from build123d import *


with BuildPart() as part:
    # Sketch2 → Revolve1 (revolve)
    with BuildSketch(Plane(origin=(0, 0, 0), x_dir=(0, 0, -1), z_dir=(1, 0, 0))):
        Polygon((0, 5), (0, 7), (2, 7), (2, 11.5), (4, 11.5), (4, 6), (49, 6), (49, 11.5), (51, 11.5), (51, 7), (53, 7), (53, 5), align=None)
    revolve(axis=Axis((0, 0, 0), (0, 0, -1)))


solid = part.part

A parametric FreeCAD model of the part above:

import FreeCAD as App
import Part
import Sketcher

V = App.Vector
Q = App.Units.Quantity


def add_polygon(sketch, points):
    """Adds a closed chain of lines whose ends are joined by coincident constraints."""
    first, n = sketch.GeometryCount, len(points)
    for a, b in zip(points, points[1:] + points[:1]):
        sketch.addGeometry(Part.LineSegment(App.Vector(*a, 0), App.Vector(*b, 0)), False)
    for i in range(n):
        sketch.addConstraint(Sketcher.Constraint("Coincident", first + i, 2, first + (i + 1) % n, 1))

doc = App.newDocument("Part")
body = doc.addObject("PartDesign::Body", "Body")

# Sketch on YZ plane
sketch1 = body.newObject("Sketcher::SketchObject", "Sketch")
sketch1.AttachmentSupport = (doc.getObject("YZ_Plane"), [""])
sketch1.MapMode = "FlatFace"
add_polygon(sketch1, [(7, 0), (5, 0), (5, -53), (7, -53), (7, -51), (11.5, -51), (11.5, -49), (6, -49), (6, -4), (11.5, -4), (11.5, -2), (7, -2)])  # lines 0-11
sketch1.addConstraint([
    Sketcher.Constraint("Horizontal", 0),
    Sketcher.Constraint("Vertical", 1),
    Sketcher.Constraint("Horizontal", 2),
    Sketcher.Constraint("Vertical", 3),
    Sketcher.Constraint("Horizontal", 4),
    Sketcher.Constraint("Vertical", 5),
    Sketcher.Constraint("Horizontal", 6),
    Sketcher.Constraint("Vertical", 7),
    Sketcher.Constraint("Horizontal", 8),
    Sketcher.Constraint("Vertical", 9),
    Sketcher.Constraint("Horizontal", 10),
    Sketcher.Constraint("Vertical", 11),
    Sketcher.Constraint("PointOnObject", 0, 2, -1),
    Sketcher.Constraint("Vertical", 5, 2, 8, 2),
    Sketcher.Constraint("Vertical", 3, 2, 10, 2),
    Sketcher.Constraint("Equal", 2, 3),
    Sketcher.Constraint("Equal", 3, 5),
    Sketcher.Constraint("Equal", 5, 9),
    Sketcher.Constraint("Equal", 9, 11),
    Sketcher.Constraint("DistanceX", 0, 2, 0, 1, Q("2 mm")),
    Sketcher.Constraint("DistanceY", 1, 2, 1, 1, Q("53 mm")),
    Sketcher.Constraint("DistanceX", 4, 1, 4, 2, Q("4.5 mm")),
    Sketcher.Constraint("DistanceX", 6, 2, 6, 1, Q("5.5 mm")),
    Sketcher.Constraint("DistanceX", -1, 1, 0, 2, Q("5 mm")),
])
revolution = body.newObject("PartDesign::Revolution", "Revolution")
revolution.Profile = sketch1
revolution.ReferenceAxis = (sketch1, ["V_Axis"])
revolution.Angle = 360

doc.recompute()
